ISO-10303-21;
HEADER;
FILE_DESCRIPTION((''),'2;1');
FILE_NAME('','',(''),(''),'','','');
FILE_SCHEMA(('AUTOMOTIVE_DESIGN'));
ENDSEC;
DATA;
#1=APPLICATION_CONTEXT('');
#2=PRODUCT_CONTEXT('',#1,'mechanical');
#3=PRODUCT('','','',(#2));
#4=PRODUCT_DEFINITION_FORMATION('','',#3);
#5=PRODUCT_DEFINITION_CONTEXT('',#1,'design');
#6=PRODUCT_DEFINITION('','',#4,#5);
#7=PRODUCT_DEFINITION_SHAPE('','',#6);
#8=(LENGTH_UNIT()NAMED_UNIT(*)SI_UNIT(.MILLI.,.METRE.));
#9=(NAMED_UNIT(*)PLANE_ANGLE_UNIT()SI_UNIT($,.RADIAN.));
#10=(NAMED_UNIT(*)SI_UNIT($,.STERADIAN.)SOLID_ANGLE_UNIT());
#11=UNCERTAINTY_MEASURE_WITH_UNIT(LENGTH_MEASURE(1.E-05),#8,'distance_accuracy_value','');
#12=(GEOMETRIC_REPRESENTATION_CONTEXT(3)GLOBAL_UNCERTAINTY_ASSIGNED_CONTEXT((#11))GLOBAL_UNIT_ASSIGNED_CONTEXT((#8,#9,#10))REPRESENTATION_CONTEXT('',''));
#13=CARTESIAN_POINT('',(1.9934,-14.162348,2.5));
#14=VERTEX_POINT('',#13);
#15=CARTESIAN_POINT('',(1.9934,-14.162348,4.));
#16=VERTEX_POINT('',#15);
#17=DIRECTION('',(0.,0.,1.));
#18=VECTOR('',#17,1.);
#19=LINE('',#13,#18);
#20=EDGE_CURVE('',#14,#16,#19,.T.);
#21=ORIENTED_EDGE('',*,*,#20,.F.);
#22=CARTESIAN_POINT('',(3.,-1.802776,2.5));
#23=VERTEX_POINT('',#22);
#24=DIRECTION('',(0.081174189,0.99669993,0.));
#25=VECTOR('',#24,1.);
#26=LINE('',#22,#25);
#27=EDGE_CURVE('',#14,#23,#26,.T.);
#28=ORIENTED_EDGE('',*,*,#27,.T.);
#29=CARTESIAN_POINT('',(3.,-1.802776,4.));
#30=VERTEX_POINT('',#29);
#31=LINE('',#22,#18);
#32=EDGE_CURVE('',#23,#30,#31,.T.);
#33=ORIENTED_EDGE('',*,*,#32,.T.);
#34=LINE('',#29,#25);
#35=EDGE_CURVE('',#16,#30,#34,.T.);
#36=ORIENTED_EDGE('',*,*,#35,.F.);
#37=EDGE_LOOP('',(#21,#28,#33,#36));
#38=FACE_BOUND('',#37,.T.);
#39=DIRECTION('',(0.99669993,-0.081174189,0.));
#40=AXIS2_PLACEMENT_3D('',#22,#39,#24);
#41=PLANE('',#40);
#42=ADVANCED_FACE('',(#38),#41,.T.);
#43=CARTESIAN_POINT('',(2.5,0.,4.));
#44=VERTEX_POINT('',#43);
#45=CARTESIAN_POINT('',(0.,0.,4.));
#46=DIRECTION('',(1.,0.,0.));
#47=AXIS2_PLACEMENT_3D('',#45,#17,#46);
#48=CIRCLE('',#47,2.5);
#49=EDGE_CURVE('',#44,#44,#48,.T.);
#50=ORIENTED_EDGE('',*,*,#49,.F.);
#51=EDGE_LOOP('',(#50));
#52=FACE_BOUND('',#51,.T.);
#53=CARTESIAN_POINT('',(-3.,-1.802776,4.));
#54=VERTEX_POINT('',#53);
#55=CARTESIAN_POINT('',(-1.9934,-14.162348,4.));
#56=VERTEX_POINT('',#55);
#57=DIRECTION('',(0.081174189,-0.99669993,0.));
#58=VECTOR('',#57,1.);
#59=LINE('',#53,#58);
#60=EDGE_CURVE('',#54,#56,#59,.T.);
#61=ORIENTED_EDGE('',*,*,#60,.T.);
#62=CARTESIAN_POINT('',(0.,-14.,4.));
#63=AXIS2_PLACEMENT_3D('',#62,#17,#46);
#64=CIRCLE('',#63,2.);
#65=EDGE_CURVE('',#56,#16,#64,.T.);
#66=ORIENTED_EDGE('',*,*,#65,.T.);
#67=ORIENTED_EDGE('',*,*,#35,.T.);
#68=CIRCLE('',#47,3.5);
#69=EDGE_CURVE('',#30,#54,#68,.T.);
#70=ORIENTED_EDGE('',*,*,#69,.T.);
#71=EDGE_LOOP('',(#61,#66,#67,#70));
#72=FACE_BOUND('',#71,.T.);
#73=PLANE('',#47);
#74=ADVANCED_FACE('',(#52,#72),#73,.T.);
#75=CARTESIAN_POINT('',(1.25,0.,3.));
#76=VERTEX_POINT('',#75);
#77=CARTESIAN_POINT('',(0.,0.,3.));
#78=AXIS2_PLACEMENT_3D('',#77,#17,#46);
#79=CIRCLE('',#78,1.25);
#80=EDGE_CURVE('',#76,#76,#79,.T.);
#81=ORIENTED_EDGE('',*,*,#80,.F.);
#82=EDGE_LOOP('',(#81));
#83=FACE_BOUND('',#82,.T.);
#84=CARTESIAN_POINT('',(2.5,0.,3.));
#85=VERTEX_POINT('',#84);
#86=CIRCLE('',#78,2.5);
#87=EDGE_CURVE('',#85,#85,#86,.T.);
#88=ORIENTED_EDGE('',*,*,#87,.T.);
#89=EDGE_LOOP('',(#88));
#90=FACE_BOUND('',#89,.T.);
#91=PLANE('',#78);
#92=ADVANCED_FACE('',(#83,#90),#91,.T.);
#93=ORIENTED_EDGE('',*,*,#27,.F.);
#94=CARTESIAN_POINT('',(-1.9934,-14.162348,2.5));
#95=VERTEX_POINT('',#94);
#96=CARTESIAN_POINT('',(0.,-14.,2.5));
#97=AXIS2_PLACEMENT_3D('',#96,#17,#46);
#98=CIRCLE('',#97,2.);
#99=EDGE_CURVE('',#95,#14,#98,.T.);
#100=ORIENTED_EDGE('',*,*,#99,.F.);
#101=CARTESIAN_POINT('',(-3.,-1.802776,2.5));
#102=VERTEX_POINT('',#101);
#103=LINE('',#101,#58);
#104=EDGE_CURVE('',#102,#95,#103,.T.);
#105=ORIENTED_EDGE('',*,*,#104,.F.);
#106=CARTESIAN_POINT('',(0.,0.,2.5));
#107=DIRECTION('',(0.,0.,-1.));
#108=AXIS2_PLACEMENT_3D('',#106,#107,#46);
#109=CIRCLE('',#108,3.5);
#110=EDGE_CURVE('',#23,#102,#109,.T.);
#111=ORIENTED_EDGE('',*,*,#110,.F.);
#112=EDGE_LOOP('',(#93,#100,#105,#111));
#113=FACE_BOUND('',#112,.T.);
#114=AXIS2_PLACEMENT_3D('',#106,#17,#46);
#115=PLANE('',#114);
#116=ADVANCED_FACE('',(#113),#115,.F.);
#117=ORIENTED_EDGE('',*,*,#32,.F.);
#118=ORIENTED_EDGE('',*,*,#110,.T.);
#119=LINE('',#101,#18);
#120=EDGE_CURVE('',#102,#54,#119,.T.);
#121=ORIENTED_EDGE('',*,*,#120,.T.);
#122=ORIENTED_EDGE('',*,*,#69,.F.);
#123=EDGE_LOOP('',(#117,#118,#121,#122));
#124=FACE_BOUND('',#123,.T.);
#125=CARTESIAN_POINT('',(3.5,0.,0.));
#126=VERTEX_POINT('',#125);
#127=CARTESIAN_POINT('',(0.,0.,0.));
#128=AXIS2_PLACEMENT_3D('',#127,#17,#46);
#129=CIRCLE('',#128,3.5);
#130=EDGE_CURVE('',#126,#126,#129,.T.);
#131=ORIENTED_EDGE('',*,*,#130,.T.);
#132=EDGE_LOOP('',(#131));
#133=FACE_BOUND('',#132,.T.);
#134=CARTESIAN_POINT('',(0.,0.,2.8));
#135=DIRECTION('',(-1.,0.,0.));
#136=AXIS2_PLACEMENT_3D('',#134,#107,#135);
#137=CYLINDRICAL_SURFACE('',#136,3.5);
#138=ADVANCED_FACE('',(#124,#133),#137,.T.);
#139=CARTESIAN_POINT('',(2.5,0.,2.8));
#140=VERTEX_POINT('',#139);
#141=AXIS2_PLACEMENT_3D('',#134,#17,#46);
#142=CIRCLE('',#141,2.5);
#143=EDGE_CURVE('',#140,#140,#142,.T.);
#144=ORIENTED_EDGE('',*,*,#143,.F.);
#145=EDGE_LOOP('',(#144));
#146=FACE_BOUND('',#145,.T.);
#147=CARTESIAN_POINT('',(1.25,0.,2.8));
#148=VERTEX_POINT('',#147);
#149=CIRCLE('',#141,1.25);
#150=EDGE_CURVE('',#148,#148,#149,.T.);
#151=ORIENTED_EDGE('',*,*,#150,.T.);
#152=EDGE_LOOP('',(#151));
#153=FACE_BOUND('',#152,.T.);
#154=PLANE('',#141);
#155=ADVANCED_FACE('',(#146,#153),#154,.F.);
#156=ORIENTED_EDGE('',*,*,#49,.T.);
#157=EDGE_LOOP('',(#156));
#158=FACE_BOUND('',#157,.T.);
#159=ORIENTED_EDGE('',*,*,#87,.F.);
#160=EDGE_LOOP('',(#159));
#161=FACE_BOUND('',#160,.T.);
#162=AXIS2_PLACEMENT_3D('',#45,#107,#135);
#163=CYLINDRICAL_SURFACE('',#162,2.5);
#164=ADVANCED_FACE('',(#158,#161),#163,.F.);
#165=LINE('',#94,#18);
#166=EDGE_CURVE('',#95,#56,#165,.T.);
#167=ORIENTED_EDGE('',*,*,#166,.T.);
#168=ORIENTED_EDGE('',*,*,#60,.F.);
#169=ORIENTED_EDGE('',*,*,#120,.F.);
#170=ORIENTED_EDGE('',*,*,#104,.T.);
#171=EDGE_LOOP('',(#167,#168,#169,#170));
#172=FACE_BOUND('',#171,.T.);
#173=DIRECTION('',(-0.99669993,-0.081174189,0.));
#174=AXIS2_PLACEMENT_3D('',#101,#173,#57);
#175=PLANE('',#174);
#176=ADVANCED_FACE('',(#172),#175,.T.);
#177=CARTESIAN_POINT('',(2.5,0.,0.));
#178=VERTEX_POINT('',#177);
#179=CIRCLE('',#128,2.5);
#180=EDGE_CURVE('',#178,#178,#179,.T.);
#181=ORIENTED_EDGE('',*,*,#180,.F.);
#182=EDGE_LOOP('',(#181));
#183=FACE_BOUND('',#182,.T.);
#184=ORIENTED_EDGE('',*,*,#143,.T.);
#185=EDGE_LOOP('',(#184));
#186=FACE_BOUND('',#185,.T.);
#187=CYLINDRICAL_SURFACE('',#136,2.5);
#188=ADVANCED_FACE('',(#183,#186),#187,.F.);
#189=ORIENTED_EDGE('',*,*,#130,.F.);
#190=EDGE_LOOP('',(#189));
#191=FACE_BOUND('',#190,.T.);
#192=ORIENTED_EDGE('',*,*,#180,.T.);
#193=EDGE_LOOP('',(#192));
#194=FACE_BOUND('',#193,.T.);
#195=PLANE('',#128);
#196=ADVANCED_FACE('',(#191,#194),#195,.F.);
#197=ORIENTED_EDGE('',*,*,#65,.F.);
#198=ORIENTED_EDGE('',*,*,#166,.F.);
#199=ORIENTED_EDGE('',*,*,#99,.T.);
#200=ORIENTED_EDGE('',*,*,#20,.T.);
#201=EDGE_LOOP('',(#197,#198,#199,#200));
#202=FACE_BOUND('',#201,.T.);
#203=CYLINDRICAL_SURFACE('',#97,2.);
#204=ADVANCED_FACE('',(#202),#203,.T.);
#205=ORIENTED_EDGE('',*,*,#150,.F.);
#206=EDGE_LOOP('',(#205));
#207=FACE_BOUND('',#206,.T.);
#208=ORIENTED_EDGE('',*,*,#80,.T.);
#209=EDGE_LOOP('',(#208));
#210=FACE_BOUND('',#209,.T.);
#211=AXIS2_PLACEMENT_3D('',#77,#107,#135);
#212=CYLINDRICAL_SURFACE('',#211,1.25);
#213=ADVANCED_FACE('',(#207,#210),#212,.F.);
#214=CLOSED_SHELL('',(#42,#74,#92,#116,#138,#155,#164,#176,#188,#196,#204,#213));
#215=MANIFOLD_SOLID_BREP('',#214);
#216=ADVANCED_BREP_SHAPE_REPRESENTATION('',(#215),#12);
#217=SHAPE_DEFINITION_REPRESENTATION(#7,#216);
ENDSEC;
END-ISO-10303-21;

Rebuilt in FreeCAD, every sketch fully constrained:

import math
import FreeCAD as App
import Part
import Sketcher
from FreeCAD import Vector
Q = App.Units.Quantity

doc = App.newDocument("Part")
body = doc.addObject("PartDesign::Body", "Body")

sketch1 = body.newObject("Sketcher::SketchObject", "Sketch")
sketch1.AttachmentSupport = (doc.getObject("XY_Plane"), [""])
sketch1.MapMode = "FlatFace"
sketch1.addGeometry([
    Part.Circle(Vector(0, 0, 0), Vector(0, 0, 1), 3.5),
    Part.Circle(Vector(0, 0, 0), Vector(0, 0, 1), 2.5),
], False)
sketch1.addConstraint([
    Sketcher.Constraint("Coincident", 0, 3, -1, 1),
    Sketcher.Constraint("Coincident", 1, 3, -1, 1),
    Sketcher.Constraint("Diameter", 0, Q("7 mm")),
    Sketcher.Constraint("Diameter", 1, Q("5 mm")),
])
pad1 = body.newObject("PartDesign::Pad", "Pad")
pad1.Profile = sketch1
pad1.Length = 2.8

sketch2 = body.newObject("Sketcher::SketchObject", "Sketch001")
sketch2.AttachmentSupport = (doc.getObject("XY_Plane"), [""])
sketch2.MapMode = "FlatFace"
sketch2.AttachmentOffset = App.Placement(Vector(0, 0, 2.8), App.Rotation())
sketch2.addGeometry([
    Part.Circle(Vector(0, 0, 0), Vector(0, 0, 1), 3.5),
    Part.Circle(Vector(0, 0, 0), Vector(0, 0, 1), 1.2),
], False)
sketch2.addConstraint([
    Sketcher.Constraint("Coincident", 0, 3, -1, 1),
    Sketcher.Constraint("Coincident", 1, 3, -1, 1),
    Sketcher.Constraint("Diameter", 0, Q("7 mm")),
    Sketcher.Constraint("Diameter", 1, Q("2.5 mm")),
])
pad2 = body.newObject("PartDesign::Pad", "Pad001")
pad2.Profile = sketch2
pad2.Length = 0.2

sketch3 = body.newObject("Sketcher::SketchObject", "Sketch002")
sketch3.AttachmentSupport = (doc.getObject("XY_Plane"), [""])
sketch3.MapMode = "FlatFace"
sketch3.AttachmentOffset = App.Placement(Vector(0, 0, 3), App.Rotation())
sketch3.addGeometry([
    Part.Circle(Vector(0, 0, 0), Vector(0, 0, 1), 3.5),
    Part.Circle(Vector(0, 0, 0), Vector(0, 0, 1), 2.5),
], False)
sketch3.addConstraint([
    Sketcher.Constraint("Coincident", 0, 3, -1, 1),
    Sketcher.Constraint("Coincident", 1, 3, -1, 1),
    Sketcher.Constraint("Diameter", 0, Q("7 mm")),
    Sketcher.Constraint("Diameter", 1, Q("5 mm")),
])
pad3 = body.newObject("PartDesign::Pad", "Pad002")
pad3.Profile = sketch3
pad3.Length = 1

sketch4 = body.newObject("Sketcher::SketchObject", "Sketch003")
sketch4.AttachmentSupport = (doc.getObject("XY_Plane"), [""])
sketch4.MapMode = "FlatFace"
sketch4.AttachmentOffset = App.Placement(Vector(0, 0, 2.5), App.Rotation())
sketch4.addGeometry([
    Part.LineSegment(Vector(-3, -1.8, 0), Vector(-2, -14.2, 0)),
    Part.ArcOfCircle(Part.Circle(Vector(0, -14, 0), Vector(0, 0, 1), 2), math.radians(-175), math.radians(-5)),
    Part.LineSegment(Vector(2, -14.2, 0), Vector(3, -1.8, 0)),
    Part.ArcOfCircle(Part.Circle(Vector(0, 0, 0), Vector(0, 0, 1), 3.5), math.radians(-149), math.radians(-31)),
], False)
sketch4.addConstraint([
    Sketcher.Constraint("Tangent", 0, 2, 1, 1),
    Sketcher.Constraint("Tangent", 1, 2, 2, 1),
    Sketcher.Constraint("Coincident", 2, 2, 3, 2),
    Sketcher.Constraint("Coincident", 3, 1, 0, 1),
    Sketcher.Constraint("Coincident", 3, 3, -1, 1),
    Sketcher.Constraint("Symmetric", 0, 2, 1, 2, -2),
    Sketcher.Constraint("Radius", 1, Q("2 mm")),
    Sketcher.Constraint("Radius", 3, Q("3.5 mm")),
    Sketcher.Constraint("DistanceY", 1, 3, -1, 1, Q("14 mm")),
    Sketcher.Constraint("DistanceX", -1, 1, 2, 2, Q("3 mm")),
])
pad4 = body.newObject("PartDesign::Pad", "Pad003")
pad4.Profile = sketch4
pad4.Length = 1.5

doc.recompute()
